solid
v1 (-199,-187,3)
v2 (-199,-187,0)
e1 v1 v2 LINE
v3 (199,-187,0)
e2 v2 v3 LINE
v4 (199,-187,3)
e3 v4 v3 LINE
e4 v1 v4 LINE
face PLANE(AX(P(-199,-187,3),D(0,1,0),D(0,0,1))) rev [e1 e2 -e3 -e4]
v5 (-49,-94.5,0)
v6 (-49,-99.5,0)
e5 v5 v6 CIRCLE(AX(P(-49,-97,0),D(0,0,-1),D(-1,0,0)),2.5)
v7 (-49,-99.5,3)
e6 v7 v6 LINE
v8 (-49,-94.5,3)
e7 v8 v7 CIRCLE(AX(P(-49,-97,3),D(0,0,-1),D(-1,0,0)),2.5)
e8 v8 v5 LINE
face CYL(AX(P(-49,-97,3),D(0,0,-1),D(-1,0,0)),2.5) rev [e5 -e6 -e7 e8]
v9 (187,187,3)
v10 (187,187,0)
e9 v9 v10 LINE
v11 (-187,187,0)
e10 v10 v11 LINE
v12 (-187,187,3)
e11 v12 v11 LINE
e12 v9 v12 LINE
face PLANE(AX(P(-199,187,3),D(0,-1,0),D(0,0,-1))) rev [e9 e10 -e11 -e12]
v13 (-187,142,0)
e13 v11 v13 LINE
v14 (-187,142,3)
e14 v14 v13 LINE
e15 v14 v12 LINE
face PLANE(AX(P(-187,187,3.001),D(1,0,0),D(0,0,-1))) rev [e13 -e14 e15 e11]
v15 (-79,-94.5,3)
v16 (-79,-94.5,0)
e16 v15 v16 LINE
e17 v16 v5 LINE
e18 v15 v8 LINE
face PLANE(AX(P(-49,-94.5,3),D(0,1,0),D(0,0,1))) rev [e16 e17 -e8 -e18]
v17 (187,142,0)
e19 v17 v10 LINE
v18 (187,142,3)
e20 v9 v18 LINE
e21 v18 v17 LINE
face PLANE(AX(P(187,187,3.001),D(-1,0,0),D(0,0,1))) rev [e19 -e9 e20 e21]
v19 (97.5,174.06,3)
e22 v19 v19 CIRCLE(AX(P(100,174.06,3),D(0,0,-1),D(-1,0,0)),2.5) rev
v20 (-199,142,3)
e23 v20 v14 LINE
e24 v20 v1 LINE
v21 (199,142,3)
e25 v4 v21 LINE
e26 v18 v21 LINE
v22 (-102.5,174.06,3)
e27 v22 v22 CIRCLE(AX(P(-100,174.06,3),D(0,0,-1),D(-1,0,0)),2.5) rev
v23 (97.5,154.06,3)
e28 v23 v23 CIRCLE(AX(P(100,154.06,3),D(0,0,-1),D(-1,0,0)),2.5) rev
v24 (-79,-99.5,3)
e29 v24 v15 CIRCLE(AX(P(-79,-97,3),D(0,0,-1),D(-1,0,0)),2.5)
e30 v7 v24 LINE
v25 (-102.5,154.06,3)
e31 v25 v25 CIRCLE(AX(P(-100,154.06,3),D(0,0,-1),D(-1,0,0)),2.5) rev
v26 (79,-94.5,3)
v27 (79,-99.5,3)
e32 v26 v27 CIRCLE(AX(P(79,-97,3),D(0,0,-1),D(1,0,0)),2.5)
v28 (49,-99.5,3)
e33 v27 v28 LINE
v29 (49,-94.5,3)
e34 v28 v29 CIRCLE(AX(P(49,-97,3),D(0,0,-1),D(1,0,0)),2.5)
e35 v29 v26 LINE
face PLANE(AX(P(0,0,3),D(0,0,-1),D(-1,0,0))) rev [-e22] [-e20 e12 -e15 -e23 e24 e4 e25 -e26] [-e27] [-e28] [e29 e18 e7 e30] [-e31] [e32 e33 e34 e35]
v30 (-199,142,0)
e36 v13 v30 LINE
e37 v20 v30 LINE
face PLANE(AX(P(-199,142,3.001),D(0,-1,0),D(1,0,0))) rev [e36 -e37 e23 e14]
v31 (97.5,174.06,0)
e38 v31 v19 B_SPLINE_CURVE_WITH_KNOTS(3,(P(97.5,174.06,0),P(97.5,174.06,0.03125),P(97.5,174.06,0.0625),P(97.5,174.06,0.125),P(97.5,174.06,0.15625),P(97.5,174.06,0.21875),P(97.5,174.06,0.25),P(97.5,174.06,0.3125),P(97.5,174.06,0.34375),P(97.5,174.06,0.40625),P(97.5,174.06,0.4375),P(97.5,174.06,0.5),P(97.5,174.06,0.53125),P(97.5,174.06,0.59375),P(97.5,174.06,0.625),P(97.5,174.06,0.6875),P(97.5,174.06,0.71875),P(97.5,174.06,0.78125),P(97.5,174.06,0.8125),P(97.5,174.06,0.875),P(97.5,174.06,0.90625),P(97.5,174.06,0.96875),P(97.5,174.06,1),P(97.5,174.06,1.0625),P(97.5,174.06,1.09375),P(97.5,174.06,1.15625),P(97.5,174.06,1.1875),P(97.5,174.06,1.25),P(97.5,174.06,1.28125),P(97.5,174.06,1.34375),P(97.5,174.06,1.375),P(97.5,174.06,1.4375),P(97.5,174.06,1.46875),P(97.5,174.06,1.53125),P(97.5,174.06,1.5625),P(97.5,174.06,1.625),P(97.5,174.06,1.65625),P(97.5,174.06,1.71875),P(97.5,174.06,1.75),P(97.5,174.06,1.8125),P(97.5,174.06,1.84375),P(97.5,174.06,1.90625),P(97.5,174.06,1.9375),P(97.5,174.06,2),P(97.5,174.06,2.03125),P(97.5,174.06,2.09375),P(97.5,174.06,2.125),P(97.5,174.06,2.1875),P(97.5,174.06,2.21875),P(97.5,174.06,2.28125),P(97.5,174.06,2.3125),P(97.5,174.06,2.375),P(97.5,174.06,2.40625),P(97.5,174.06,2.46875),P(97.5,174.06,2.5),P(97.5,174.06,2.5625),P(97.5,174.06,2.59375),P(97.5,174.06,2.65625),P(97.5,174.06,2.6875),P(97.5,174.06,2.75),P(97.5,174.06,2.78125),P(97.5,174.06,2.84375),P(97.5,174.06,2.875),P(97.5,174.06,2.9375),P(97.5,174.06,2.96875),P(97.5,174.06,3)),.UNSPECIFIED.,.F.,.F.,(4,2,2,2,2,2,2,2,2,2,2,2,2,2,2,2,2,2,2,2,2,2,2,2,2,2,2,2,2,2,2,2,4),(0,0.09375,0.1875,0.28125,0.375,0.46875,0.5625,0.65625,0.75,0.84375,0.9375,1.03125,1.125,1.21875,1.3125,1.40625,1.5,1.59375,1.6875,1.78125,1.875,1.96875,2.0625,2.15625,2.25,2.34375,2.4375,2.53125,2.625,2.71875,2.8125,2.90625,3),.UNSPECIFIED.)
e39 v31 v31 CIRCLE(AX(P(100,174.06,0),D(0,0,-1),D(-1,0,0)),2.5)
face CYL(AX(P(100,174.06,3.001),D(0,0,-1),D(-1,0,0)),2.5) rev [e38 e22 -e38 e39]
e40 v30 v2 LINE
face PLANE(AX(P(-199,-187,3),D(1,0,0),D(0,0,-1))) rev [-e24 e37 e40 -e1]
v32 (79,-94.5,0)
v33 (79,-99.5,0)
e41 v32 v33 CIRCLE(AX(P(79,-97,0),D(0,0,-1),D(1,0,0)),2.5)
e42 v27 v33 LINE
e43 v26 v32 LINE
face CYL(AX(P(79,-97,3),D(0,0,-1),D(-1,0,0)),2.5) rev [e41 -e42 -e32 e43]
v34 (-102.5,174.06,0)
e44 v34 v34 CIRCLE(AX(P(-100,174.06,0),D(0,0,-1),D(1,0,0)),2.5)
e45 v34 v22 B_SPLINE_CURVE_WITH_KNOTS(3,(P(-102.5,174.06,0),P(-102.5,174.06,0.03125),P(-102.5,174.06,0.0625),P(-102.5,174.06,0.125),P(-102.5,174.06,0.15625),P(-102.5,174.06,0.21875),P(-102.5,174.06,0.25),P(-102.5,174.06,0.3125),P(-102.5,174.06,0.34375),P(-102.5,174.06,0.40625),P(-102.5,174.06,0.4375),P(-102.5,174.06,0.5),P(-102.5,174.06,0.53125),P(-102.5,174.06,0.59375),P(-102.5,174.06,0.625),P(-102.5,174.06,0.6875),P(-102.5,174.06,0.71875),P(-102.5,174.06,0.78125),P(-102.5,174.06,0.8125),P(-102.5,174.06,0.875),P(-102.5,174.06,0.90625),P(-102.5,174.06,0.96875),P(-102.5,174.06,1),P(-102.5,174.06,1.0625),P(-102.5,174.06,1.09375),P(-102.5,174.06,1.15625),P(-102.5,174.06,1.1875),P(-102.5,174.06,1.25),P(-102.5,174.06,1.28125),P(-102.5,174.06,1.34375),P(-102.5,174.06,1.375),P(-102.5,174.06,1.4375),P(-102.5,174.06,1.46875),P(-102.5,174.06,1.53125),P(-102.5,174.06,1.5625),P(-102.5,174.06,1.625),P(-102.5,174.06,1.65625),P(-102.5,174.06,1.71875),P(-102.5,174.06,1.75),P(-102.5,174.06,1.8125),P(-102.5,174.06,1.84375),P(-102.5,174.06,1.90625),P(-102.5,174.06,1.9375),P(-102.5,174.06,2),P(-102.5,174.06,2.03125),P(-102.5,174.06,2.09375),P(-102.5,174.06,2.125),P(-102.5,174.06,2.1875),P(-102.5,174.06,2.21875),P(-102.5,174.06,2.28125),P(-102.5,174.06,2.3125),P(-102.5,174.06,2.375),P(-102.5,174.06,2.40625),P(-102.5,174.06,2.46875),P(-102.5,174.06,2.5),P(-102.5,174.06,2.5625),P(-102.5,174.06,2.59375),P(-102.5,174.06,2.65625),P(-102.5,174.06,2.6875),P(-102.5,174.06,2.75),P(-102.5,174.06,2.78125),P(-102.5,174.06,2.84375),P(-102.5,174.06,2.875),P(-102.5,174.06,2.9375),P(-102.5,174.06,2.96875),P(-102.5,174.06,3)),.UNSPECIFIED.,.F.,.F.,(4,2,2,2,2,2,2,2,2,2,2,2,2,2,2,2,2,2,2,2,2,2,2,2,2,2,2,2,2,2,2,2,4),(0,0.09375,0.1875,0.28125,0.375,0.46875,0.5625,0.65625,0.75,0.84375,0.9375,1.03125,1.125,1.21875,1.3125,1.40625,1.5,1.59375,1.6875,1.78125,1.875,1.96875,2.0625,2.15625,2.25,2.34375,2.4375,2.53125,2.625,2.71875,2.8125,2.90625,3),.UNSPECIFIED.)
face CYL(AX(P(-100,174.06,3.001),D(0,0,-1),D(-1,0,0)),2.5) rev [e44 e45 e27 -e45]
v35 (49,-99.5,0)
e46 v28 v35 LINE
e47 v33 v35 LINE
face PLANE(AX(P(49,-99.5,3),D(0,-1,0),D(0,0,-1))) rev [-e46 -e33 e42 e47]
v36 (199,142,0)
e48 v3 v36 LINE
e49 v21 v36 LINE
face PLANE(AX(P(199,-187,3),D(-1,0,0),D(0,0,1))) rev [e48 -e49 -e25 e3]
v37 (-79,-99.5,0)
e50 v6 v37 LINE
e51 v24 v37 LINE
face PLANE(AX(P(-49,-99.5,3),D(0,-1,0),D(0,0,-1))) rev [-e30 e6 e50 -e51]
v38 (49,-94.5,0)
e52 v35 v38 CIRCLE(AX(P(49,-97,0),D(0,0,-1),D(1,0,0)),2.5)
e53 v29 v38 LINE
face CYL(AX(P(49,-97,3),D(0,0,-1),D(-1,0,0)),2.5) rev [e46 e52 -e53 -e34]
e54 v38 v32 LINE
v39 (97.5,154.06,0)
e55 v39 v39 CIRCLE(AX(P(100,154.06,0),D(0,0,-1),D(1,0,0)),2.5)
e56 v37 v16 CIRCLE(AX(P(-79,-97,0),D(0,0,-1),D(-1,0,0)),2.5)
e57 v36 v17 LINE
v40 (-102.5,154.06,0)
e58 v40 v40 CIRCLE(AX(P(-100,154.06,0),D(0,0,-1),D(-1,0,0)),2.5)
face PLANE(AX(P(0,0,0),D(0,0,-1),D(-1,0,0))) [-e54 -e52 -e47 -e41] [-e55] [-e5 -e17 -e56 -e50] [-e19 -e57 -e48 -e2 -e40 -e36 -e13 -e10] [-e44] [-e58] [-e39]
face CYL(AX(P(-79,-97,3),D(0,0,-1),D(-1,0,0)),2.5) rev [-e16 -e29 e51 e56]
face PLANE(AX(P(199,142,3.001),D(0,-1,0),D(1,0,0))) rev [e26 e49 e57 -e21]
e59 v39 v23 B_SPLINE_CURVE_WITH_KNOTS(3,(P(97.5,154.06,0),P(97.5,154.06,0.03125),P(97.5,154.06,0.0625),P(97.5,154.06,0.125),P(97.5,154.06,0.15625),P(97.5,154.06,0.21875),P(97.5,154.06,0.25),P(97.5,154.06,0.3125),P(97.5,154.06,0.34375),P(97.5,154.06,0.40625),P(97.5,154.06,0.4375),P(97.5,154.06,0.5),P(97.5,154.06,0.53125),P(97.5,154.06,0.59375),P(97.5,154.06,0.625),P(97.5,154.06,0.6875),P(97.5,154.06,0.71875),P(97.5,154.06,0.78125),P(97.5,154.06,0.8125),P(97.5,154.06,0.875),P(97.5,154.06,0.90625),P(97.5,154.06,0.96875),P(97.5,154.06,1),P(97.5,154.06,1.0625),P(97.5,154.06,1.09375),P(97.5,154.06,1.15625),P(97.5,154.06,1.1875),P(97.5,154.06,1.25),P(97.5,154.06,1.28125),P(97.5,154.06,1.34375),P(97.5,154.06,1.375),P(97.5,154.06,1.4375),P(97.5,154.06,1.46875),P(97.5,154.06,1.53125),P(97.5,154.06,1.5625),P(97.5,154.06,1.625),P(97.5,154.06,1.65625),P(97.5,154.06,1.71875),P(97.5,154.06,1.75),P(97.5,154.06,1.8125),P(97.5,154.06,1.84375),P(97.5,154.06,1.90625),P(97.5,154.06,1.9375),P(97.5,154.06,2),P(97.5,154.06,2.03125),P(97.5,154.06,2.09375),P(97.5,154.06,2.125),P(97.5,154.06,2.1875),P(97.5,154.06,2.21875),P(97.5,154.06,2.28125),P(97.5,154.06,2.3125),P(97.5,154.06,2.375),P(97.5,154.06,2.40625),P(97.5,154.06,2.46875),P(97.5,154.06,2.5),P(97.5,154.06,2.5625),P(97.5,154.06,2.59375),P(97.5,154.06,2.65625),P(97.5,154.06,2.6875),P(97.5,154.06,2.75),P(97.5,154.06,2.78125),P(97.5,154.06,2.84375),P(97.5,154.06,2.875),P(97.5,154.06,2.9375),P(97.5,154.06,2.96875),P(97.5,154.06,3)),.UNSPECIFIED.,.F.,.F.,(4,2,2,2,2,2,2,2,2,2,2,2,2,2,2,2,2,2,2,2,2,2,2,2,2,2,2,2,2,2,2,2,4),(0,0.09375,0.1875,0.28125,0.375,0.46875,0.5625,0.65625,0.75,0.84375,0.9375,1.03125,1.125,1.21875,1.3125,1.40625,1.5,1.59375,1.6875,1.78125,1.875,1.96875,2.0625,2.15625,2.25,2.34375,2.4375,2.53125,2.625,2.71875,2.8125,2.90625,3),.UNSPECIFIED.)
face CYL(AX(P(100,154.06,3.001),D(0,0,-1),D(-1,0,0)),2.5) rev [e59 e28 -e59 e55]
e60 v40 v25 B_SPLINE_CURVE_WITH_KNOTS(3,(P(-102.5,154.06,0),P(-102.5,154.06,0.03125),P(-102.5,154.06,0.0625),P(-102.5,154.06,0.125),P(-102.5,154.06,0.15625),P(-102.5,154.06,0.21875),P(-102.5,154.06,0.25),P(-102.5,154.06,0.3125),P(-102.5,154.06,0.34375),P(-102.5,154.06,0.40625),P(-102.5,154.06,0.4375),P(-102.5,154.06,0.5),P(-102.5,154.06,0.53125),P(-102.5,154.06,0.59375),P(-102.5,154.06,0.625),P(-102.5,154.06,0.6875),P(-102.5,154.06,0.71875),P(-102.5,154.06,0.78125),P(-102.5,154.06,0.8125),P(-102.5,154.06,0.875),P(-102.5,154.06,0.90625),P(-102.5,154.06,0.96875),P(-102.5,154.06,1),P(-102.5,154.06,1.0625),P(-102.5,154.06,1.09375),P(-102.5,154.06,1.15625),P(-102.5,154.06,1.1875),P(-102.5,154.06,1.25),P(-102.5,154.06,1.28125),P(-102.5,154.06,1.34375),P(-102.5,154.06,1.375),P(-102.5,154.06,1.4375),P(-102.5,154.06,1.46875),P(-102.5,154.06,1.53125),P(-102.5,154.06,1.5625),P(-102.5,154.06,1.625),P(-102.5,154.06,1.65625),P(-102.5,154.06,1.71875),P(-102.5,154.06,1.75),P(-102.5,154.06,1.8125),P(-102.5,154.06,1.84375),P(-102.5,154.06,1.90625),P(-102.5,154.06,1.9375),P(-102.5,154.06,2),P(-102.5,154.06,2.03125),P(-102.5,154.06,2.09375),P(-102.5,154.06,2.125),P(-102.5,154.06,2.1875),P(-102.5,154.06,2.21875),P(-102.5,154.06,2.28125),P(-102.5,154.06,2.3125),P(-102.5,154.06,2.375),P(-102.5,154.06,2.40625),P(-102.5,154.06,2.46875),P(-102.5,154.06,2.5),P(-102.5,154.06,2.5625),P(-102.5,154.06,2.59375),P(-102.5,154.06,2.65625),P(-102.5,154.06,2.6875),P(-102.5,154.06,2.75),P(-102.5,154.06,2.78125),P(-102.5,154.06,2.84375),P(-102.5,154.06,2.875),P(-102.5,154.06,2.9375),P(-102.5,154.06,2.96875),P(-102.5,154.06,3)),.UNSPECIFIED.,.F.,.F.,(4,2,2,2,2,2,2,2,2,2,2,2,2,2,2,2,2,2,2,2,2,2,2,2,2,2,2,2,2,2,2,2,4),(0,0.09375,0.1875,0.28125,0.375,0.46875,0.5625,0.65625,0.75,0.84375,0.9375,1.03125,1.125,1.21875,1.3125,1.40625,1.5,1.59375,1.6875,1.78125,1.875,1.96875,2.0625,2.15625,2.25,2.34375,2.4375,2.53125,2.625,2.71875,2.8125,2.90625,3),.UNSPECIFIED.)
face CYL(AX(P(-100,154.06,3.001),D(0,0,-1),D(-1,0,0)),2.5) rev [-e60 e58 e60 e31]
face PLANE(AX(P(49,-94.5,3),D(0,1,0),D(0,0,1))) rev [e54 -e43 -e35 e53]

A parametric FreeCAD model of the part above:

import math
import FreeCAD as App
import Part
import Sketcher
from FreeCAD import Vector
Q = App.Units.Quantity


def add_polygon(sketch, points):
    """Adds a closed chain of lines whose ends are joined by coincident constraints."""
    first, n = sketch.GeometryCount, len(points)
    for a, b in zip(points, points[1:] + points[:1]):
        sketch.addGeometry(Part.LineSegment(App.Vector(*a, 0), App.Vector(*b, 0)), False)
    for i in range(n):
        sketch.addConstraint(Sketcher.Constraint("Coincident", first + i, 2, first + (i + 1) % n, 1))

doc = App.newDocument("Part")
body = doc.addObject("PartDesign::Body", "Body")

sketch1 = body.newObject("Sketcher::SketchObject", "Sketch")
sketch1.AttachmentSupport = (doc.getObject("XY_Plane"), [""])
sketch1.MapMode = "FlatFace"
add_polygon(sketch1, [(-199, 187), (-199, -187), (199, -187), (199, 187)])
sketch1.addConstraint([
    Sketcher.Constraint("Vertical", 0),
    Sketcher.Constraint("Horizontal", 1),
    Sketcher.Constraint("Vertical", 2),
    Sketcher.Constraint("Horizontal", 3),
    Sketcher.Constraint("Symmetric", 0, 2, 2, 2, -1, 1),
    Sketcher.Constraint("DistanceX", 1, 1, 1, 2, Q("398 mm")),
    Sketcher.Constraint("DistanceY", 0, 2, 0, 1, Q("374 mm")),
])
pad1 = body.newObject("PartDesign::Pad", "Pad")
pad1.Profile = sketch1
pad1.Length = 3

sketch2 = body.newObject("Sketcher::SketchObject", "Sketch001")
sketch2.AttachmentSupport = (doc.getObject("XY_Plane"), [""])
sketch2.MapMode = "FlatFace"
sketch2.addGeometry(Part.Circle(Vector(100, 174.06, 0), Vector(0, 0, 1), 2.5), False)
sketch2.addConstraint([
    Sketcher.Constraint("Diameter", 0, Q("5 mm")),
    Sketcher.Constraint("DistanceX", -1, 1, 0, 3, Q("100 mm")),
    Sketcher.Constraint("DistanceY", -1, 1, 0, 3, Q("174.06 mm")),
])
pocket1 = body.newObject("PartDesign::Pocket", "Pocket")
pocket1.Profile = sketch2
pocket1.Type = "UpToFirst"
pocket1.Reversed = True

sketch3 = body.newObject("Sketcher::SketchObject", "Sketch002")
sketch3.AttachmentSupport = (doc.getObject("XY_Plane"), [""])
sketch3.MapMode = "FlatFace"
sketch3.addGeometry(Part.Circle(Vector(100, 154.06, 0), Vector(0, 0, 1), 2.5), False)
sketch3.addConstraint([
    Sketcher.Constraint("Diameter", 0, Q("5 mm")),
    Sketcher.Constraint("DistanceX", -1, 1, 0, 3, Q("100 mm")),
    Sketcher.Constraint("DistanceY", -1, 1, 0, 3, Q("154.06 mm")),
])
pocket2 = body.newObject("PartDesign::Pocket", "Pocket001")
pocket2.Profile = sketch3
pocket2.Type = "UpToFirst"
pocket2.Reversed = True

sketch4 = body.newObject("Sketcher::SketchObject", "Sketch003")
sketch4.AttachmentSupport = (doc.getObject("XY_Plane"), [""])
sketch4.MapMode = "FlatFace"
sketch4.addGeometry(Part.Circle(Vector(-100, 154.06, 0), Vector(0, 0, 1), 2.5), False)
sketch4.addConstraint([
    Sketcher.Constraint("Diameter", 0, Q("5 mm")),
    Sketcher.Constraint("DistanceX", 0, 3, -1, 1, Q("100 mm")),
    Sketcher.Constraint("DistanceY", -1, 1, 0, 3, Q("154.06 mm")),
])
pocket3 = body.newObject("PartDesign::Pocket", "Pocket002")
pocket3.Profile = sketch4
pocket3.Type = "UpToFirst"
pocket3.Reversed = True

sketch5 = body.newObject("Sketcher::SketchObject", "Sketch004")
sketch5.AttachmentSupport = (doc.getObject("XY_Plane"), [""])
sketch5.MapMode = "FlatFace"
sketch5.addGeometry(Part.Circle(Vector(-100, 174.06, 0), Vector(0, 0, 1), 2.5), False)
sketch5.addConstraint([
    Sketcher.Constraint("Diameter", 0, Q("5 mm")),
    Sketcher.Constraint("DistanceX", 0, 3, -1, 1, Q("100 mm")),
    Sketcher.Constraint("DistanceY", -1, 1, 0, 3, Q("174.06 mm")),
])
pocket4 = body.newObject("PartDesign::Pocket", "Pocket003")
pocket4.Profile = sketch5
pocket4.Type = "UpToFirst"
pocket4.Reversed = True

sketch6 = body.newObject("Sketcher::SketchObject", "Sketch005")
sketch6.AttachmentSupport = (doc.getObject("XY_Plane"), [""])
sketch6.MapMode = "FlatFace"
add_polygon(sketch6, [(199, 187), (199, 142), (187, 142), (187, 187)])
sketch6.addConstraint([
    Sketcher.Constraint("Vertical", 0),
    Sketcher.Constraint("Horizontal", 1),
    Sketcher.Constraint("Vertical", 2),
    Sketcher.Constraint("Horizontal", 3),
    Sketcher.Constraint("DistanceX", 1, 2, 1, 1, Q("12 mm")),
    Sketcher.Constraint("DistanceY", 0, 2, 0, 1, Q("45 mm")),
    Sketcher.Constraint("DistanceX", -1, 1, 0, 2, Q("199 mm")),
    Sketcher.Constraint("DistanceY", -1, 1, 0, 2, Q("142 mm")),
])
pocket5 = body.newObject("PartDesign::Pocket", "Pocket004")
pocket5.Profile = sketch6
pocket5.Type = "UpToFirst"
pocket5.Reversed = True

sketch7 = body.newObject("Sketcher::SketchObject", "Sketch006")
sketch7.AttachmentSupport = (doc.getObject("XY_Plane"), [""])
sketch7.MapMode = "FlatFace"
add_polygon(sketch7, [(-187, 187), (-187, 142), (-199, 142), (-199, 187)])
sketch7.addConstraint([
    Sketcher.Constraint("Vertical", 0),
    Sketcher.Constraint("Horizontal", 1),
    Sketcher.Constraint("Vertical", 2),
    Sketcher.Constraint("Horizontal", 3),
    Sketcher.Constraint("DistanceX", 1, 2, 1, 1, Q("12 mm")),
    Sketcher.Constraint("DistanceY", 0, 2, 0, 1, Q("45 mm")),
    Sketcher.Constraint("DistanceX", 0, 2, -1, 1, Q("187 mm")),
    Sketcher.Constraint("DistanceY", -1, 1, 0, 2, Q("142 mm")),
])
pocket6 = body.newObject("PartDesign::Pocket", "Pocket005")
pocket6.Profile = sketch7
pocket6.Type = "UpToFirst"
pocket6.Reversed = True

sketch8 = body.newObject("Sketcher::SketchObject", "Sketch007")
sketch8.AttachmentSupport = (doc.getObject("XY_Plane"), [""])
sketch8.MapMode = "FlatFace"
sketch8.addGeometry(Part.Circle(Vector(-64, -97, 0), Vector(0, 0, 1), 2.5), False)
sketch8.addConstraint([
    Sketcher.Constraint("Diameter", 0, Q("5 mm")),
    Sketcher.Constraint("DistanceX", 0, 3, -1, 1, Q("64 mm")),
    Sketcher.Constraint("DistanceY", 0, 3, -1, 1, Q("97 mm")),
])
pocket7 = body.newObject("PartDesign::Pocket", "Pocket006")
pocket7.Profile = sketch8
pocket7.Type = "UpToFirst"
pocket7.Reversed = True

sketch9 = body.newObject("Sketcher::SketchObject", "Sketch008")
sketch9.AttachmentSupport = (doc.getObject("XY_Plane"), [""])
sketch9.MapMode = "FlatFace"
sketch9.addGeometry(Part.Circle(Vector(64, -97, 0), Vector(0, 0, 1), 2.5), False)
sketch9.addConstraint([
    Sketcher.Constraint("Diameter", 0, Q("5 mm")),
    Sketcher.Constraint("DistanceX", -1, 1, 0, 3, Q("64 mm")),
    Sketcher.Constraint("DistanceY", 0, 3, -1, 1, Q("97 mm")),
])
pocket8 = body.newObject("PartDesign::Pocket", "Pocket007")
pocket8.Profile = sketch9
pocket8.Type = "UpToFirst"
pocket8.Reversed = True

sketch10 = body.newObject("Sketcher::SketchObject", "Sketch009")
sketch10.AttachmentSupport = (doc.getObject("XY_Plane"), [""])
sketch10.MapMode = "FlatFace"
sketch10.addGeometry([
    Part.LineSegment(Vector(-79, -94.5, 0), Vector(-49, -94.5, 0)),
    Part.ArcOfCircle(Part.Circle(Vector(-49, -97, 0), Vector(0, 0, 1), 2.5), math.radians(-90), math.radians(90)),
    Part.LineSegment(Vector(-49, -99.5, 0), Vector(-79, -99.5, 0)),
    Part.ArcOfCircle(Part.Circle(Vector(-79, -97, 0), Vector(0, 0, 1), 2.5), math.radians(90), math.radians(270)),
    Part.LineSegment(Vector(49, -94.5, 0), Vector(79, -94.5, 0)),
    Part.ArcOfCircle(Part.Circle(Vector(79, -97, 0), Vector(0, 0, 1), 2.5), math.radians(-90), math.radians(90)),
    Part.LineSegment(Vector(79, -99.5, 0), Vector(49, -99.5, 0)),
    Part.ArcOfCircle(Part.Circle(Vector(49, -97, 0), Vector(0, 0, 1), 2.5), math.radians(90), math.radians(270)),
], False)
sketch10.addConstraint([
    Sketcher.Constraint("Tangent", 0, 2, 1, 2),
    Sketcher.Constraint("Tangent", 1, 1, 2, 1),
    Sketcher.Constraint("Tangent", 2, 2, 3, 2),
    Sketcher.Constraint("Tangent", 3, 1, 0, 1),
    Sketcher.Constraint("Tangent", 4, 2, 5, 2),
    Sketcher.Constraint("Tangent", 5, 1, 6, 1),
    Sketcher.Constraint("Tangent", 6, 2, 7, 2),
    Sketcher.Constraint("Tangent", 7, 1, 4, 1),
    Sketcher.Constraint("Horizontal", 0),
    Sketcher.Constraint("Horizontal", 2),
    Sketcher.Constraint("Horizontal", 4),
    Sketcher.Constraint("Horizontal", 6),
    Sketcher.Constraint("Equal", 3, 5),
    Sketcher.Constraint("Symmetric", 3, 3, 5, 3, -2),
    Sketcher.Constraint("Equal", 2, 4),
    Sketcher.Constraint("Radius", 1, Q("2.5 mm")),
    Sketcher.Constraint("DistanceX", 0, 1, 0, 2, Q("30 mm")),
    Sketcher.Constraint("DistanceX", 1, 3, -1, 1, Q("49 mm")),
    Sketcher.Constraint("DistanceY", 1, 3, -1, 1, Q("97 mm")),
])
pocket9 = body.newObject("PartDesign::Pocket", "Pocket008")
pocket9.Profile = sketch10
pocket9.Type = "ThroughAll"
pocket9.Reversed = True

doc.recompute()
